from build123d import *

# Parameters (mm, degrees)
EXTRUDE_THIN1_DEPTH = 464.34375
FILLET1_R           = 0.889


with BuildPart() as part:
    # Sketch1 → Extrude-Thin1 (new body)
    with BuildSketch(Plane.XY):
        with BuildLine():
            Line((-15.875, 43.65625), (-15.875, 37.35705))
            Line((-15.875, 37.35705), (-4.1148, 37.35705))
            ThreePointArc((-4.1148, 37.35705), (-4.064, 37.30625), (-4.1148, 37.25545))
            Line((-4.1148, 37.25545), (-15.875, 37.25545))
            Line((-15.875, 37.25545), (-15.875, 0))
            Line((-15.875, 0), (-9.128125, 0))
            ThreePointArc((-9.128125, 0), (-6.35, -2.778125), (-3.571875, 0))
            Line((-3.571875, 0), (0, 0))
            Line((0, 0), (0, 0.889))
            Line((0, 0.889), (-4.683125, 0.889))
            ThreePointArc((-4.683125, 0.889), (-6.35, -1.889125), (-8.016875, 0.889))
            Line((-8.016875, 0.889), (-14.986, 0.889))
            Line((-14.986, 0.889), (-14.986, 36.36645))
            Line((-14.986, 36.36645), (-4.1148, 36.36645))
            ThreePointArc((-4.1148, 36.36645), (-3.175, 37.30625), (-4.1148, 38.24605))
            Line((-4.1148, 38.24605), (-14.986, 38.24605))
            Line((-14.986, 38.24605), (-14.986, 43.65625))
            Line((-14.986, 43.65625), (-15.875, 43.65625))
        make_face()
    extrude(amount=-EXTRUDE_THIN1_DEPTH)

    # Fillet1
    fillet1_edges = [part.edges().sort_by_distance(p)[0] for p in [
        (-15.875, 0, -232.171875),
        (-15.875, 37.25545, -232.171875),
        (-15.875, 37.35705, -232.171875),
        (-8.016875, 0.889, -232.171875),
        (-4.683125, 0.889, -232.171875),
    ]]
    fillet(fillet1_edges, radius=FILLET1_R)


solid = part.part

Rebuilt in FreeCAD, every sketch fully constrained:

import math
import FreeCAD as App
import Part
import Sketcher
from FreeCAD import Vector
Q = App.Units.Quantity


def edges_at(feature, points):
    """Names of the edges that pass closest to the given points."""
    edges = feature.Shape.Edges
    near = lambda p: min(range(len(edges)), key=lambda i: edges[i].distToShape(Part.Vertex(*p))[0])
    return sorted({f"Edge{near(p) + 1}" for p in points})

doc = App.newDocument("Part")
body = doc.addObject("PartDesign::Body", "Body")

# Sketch on XY plane
sketch1 = body.newObject("Sketcher::SketchObject", "Sketch")
sketch1.AttachmentSupport = (doc.getObject("XY_Plane"), [""])
sketch1.MapMode = "FlatFace"
sketch1.addGeometry([
    Part.LineSegment(Vector(-15.88, 43.66, 0), Vector(-15.88, 37.36, 0)),  # 0
    Part.LineSegment(Vector(-15.88, 37.36, 0), Vector(-4.11, 37.36, 0)),  # 1
    Part.ArcOfCircle(Part.Circle(Vector(-4.11, 37.31, 0), Vector(0, 0, 1), 0.05), math.radians(-90), math.radians(90)),  # 2
    Part.LineSegment(Vector(-4.11, 37.26, 0), Vector(-15.88, 37.26, 0)),  # 3
    Part.LineSegment(Vector(-15.88, 37.26, 0), Vector(-15.88, 0, 0)),  # 4
    Part.LineSegment(Vector(-15.88, 0, 0), Vector(-9.13, 0, 0)),  # 5
    Part.ArcOfCircle(Part.Circle(Vector(-6.35, 0, 0), Vector(0, 0, 1), 2.78), math.radians(180), math.radians(360)),  # 6
    Part.LineSegment(Vector(-3.57, 0, 0), Vector(0, 0, 0)),  # 7
    Part.LineSegment(Vector(0, 0, 0), Vector(0, 0.89, 0)),  # 8
    Part.LineSegment(Vector(0, 0.89, 0), Vector(-4.68, 0.89, 0)),  # 9
    Part.ArcOfCircle(Part.Circle(Vector(-6.35, 0, 0), Vector(0, 0, 1), 1.89), math.radians(152), math.radians(388)),  # 10
    Part.LineSegment(Vector(-8.02, 0.89, 0), Vector(-14.99, 0.89, 0)),  # 11
    Part.LineSegment(Vector(-14.99, 0.89, 0), Vector(-14.99, 36.37, 0)),  # 12
    Part.LineSegment(Vector(-14.99, 36.37, 0), Vector(-4.11, 36.37, 0)),  # 13
    Part.ArcOfCircle(Part.Circle(Vector(-4.11, 37.31, 0), Vector(0, 0, 1), 0.94), math.radians(-90), math.radians(90)),  # 14
    Part.LineSegment(Vector(-4.11, 38.25, 0), Vector(-14.99, 38.25, 0)),  # 15
    Part.LineSegment(Vector(-14.99, 38.25, 0), Vector(-14.99, 43.66, 0)),  # 16
    Part.LineSegment(Vector(-14.99, 43.66, 0), Vector(-15.88, 43.66, 0)),  # 17
], False)
sketch1.addConstraint([
    Sketcher.Constraint("Coincident", 0, 2, 1, 1),
    Sketcher.Constraint("Tangent", 1, 2, 2, 2),
    Sketcher.Constraint("Tangent", 2, 1, 3, 1),
    Sketcher.Constraint("Coincident", 3, 2, 4, 1),
    Sketcher.Constraint("Coincident", 4, 2, 5, 1),
    Sketcher.Constraint("Coincident", 5, 2, 6, 1),
    Sketcher.Constraint("Coincident", 6, 2, 7, 1),
    Sketcher.Constraint("Coincident", 7, 2, 8, 1),
    Sketcher.Constraint("Coincident", 8, 2, 9, 1),
    Sketcher.Constraint("Coincident", 9, 2, 10, 2),
    Sketcher.Constraint("Coincident", 10, 1, 11, 1),
    Sketcher.Constraint("Coincident", 11, 2, 12, 1),
    Sketcher.Constraint("Coincident", 12, 2, 13, 1),
    Sketcher.Constraint("Tangent", 13, 2, 14, 1),
    Sketcher.Constraint("Tangent", 14, 2, 15, 1),
    Sketcher.Constraint("Coincident", 15, 2, 16, 1),
    Sketcher.Constraint("Coincident", 16, 2, 17, 1),
    Sketcher.Constraint("Coincident", 17, 2, 0, 1),
    Sketcher.Constraint("Vertical", 0),
    Sketcher.Constraint("Horizontal", 1),
    Sketcher.Constraint("Horizontal", 3),
    Sketcher.Constraint("Vertical", 4),
    Sketcher.Constraint("Horizontal", 5),
    Sketcher.Constraint("Horizontal", 7),
    Sketcher.Constraint("Vertical", 8),
    Sketcher.Constraint("Horizontal", 9),
    Sketcher.Constraint("Horizontal", 11),
    Sketcher.Constraint("Vertical", 12),
    Sketcher.Constraint("Horizontal", 13),
    Sketcher.Constraint("Horizontal", 15),
    Sketcher.Constraint("Vertical", 16),
    Sketcher.Constraint("Horizontal", 17),
    Sketcher.Constraint("Coincident", 7, 2, -1, 1),
    Sketcher.Constraint("Coincident", 10, 3, 6, 3),
    Sketcher.Constraint("Coincident", 14, 3, 2, 3),
    Sketcher.Constraint("PointOnObject", 6, 3, -1),
    Sketcher.Constraint("PointOnObject", 4, 2, -1),
    Sketcher.Constraint("Horizontal", 9, 2, 10, 1),
    Sketcher.Constraint("Vertical", 0, 2, 3, 2),
    Sketcher.Constraint("Vertical", 12, 2, 15, 2),
    Sketcher.Constraint("Equal", 17, 8),
    Sketcher.Constraint("Radius", 2, Q("0.002 in")),
    Sketcher.Constraint("Radius", 6, Q("0.109375 in")),
    Sketcher.Constraint("Radius", 14, Q("0.037 in")),
    Sketcher.Constraint("DistanceX", 1, 1, 1, 2, Q("0.463 in")),
    Sketcher.Constraint("DistanceX", 5, 1, 5, 2, Q("0.265625 in")),
    Sketcher.Constraint("DistanceX", 7, 1, 7, 2, Q("0.140625 in")),
    Sketcher.Constraint("DistanceX", 13, 1, 13, 2, Q("0.428 in")),
    Sketcher.Constraint("DistanceY", 0, 2, 0, 1, Q("0.248 in")),
    Sketcher.Constraint("DistanceY", -1, 1, 2, 3, Q("1.46875 in")),
    Sketcher.Constraint("DistanceX", 5, 2, 9, 2, Q("0.175 in")),
])
pad1 = body.newObject("PartDesign::Pad", "Pad")
pad1.Profile = sketch1
pad1.Length = Q("18.28125 in")
pad1.Reversed = True
doc.recompute()

fillet = body.newObject("PartDesign::Fillet", "Fillet")
fillet.Base = (pad1, edges_at(pad1, [
    (-15.875, 0, -232.172),
    (-15.875, 37.255, -232.172),
    (-15.875, 37.357, -232.172),
    (-8.017, 0.889, -232.172),
    (-4.683, 0.889, -232.172),
]))
fillet.Radius = Q("0.035 in")

doc.recompute()
